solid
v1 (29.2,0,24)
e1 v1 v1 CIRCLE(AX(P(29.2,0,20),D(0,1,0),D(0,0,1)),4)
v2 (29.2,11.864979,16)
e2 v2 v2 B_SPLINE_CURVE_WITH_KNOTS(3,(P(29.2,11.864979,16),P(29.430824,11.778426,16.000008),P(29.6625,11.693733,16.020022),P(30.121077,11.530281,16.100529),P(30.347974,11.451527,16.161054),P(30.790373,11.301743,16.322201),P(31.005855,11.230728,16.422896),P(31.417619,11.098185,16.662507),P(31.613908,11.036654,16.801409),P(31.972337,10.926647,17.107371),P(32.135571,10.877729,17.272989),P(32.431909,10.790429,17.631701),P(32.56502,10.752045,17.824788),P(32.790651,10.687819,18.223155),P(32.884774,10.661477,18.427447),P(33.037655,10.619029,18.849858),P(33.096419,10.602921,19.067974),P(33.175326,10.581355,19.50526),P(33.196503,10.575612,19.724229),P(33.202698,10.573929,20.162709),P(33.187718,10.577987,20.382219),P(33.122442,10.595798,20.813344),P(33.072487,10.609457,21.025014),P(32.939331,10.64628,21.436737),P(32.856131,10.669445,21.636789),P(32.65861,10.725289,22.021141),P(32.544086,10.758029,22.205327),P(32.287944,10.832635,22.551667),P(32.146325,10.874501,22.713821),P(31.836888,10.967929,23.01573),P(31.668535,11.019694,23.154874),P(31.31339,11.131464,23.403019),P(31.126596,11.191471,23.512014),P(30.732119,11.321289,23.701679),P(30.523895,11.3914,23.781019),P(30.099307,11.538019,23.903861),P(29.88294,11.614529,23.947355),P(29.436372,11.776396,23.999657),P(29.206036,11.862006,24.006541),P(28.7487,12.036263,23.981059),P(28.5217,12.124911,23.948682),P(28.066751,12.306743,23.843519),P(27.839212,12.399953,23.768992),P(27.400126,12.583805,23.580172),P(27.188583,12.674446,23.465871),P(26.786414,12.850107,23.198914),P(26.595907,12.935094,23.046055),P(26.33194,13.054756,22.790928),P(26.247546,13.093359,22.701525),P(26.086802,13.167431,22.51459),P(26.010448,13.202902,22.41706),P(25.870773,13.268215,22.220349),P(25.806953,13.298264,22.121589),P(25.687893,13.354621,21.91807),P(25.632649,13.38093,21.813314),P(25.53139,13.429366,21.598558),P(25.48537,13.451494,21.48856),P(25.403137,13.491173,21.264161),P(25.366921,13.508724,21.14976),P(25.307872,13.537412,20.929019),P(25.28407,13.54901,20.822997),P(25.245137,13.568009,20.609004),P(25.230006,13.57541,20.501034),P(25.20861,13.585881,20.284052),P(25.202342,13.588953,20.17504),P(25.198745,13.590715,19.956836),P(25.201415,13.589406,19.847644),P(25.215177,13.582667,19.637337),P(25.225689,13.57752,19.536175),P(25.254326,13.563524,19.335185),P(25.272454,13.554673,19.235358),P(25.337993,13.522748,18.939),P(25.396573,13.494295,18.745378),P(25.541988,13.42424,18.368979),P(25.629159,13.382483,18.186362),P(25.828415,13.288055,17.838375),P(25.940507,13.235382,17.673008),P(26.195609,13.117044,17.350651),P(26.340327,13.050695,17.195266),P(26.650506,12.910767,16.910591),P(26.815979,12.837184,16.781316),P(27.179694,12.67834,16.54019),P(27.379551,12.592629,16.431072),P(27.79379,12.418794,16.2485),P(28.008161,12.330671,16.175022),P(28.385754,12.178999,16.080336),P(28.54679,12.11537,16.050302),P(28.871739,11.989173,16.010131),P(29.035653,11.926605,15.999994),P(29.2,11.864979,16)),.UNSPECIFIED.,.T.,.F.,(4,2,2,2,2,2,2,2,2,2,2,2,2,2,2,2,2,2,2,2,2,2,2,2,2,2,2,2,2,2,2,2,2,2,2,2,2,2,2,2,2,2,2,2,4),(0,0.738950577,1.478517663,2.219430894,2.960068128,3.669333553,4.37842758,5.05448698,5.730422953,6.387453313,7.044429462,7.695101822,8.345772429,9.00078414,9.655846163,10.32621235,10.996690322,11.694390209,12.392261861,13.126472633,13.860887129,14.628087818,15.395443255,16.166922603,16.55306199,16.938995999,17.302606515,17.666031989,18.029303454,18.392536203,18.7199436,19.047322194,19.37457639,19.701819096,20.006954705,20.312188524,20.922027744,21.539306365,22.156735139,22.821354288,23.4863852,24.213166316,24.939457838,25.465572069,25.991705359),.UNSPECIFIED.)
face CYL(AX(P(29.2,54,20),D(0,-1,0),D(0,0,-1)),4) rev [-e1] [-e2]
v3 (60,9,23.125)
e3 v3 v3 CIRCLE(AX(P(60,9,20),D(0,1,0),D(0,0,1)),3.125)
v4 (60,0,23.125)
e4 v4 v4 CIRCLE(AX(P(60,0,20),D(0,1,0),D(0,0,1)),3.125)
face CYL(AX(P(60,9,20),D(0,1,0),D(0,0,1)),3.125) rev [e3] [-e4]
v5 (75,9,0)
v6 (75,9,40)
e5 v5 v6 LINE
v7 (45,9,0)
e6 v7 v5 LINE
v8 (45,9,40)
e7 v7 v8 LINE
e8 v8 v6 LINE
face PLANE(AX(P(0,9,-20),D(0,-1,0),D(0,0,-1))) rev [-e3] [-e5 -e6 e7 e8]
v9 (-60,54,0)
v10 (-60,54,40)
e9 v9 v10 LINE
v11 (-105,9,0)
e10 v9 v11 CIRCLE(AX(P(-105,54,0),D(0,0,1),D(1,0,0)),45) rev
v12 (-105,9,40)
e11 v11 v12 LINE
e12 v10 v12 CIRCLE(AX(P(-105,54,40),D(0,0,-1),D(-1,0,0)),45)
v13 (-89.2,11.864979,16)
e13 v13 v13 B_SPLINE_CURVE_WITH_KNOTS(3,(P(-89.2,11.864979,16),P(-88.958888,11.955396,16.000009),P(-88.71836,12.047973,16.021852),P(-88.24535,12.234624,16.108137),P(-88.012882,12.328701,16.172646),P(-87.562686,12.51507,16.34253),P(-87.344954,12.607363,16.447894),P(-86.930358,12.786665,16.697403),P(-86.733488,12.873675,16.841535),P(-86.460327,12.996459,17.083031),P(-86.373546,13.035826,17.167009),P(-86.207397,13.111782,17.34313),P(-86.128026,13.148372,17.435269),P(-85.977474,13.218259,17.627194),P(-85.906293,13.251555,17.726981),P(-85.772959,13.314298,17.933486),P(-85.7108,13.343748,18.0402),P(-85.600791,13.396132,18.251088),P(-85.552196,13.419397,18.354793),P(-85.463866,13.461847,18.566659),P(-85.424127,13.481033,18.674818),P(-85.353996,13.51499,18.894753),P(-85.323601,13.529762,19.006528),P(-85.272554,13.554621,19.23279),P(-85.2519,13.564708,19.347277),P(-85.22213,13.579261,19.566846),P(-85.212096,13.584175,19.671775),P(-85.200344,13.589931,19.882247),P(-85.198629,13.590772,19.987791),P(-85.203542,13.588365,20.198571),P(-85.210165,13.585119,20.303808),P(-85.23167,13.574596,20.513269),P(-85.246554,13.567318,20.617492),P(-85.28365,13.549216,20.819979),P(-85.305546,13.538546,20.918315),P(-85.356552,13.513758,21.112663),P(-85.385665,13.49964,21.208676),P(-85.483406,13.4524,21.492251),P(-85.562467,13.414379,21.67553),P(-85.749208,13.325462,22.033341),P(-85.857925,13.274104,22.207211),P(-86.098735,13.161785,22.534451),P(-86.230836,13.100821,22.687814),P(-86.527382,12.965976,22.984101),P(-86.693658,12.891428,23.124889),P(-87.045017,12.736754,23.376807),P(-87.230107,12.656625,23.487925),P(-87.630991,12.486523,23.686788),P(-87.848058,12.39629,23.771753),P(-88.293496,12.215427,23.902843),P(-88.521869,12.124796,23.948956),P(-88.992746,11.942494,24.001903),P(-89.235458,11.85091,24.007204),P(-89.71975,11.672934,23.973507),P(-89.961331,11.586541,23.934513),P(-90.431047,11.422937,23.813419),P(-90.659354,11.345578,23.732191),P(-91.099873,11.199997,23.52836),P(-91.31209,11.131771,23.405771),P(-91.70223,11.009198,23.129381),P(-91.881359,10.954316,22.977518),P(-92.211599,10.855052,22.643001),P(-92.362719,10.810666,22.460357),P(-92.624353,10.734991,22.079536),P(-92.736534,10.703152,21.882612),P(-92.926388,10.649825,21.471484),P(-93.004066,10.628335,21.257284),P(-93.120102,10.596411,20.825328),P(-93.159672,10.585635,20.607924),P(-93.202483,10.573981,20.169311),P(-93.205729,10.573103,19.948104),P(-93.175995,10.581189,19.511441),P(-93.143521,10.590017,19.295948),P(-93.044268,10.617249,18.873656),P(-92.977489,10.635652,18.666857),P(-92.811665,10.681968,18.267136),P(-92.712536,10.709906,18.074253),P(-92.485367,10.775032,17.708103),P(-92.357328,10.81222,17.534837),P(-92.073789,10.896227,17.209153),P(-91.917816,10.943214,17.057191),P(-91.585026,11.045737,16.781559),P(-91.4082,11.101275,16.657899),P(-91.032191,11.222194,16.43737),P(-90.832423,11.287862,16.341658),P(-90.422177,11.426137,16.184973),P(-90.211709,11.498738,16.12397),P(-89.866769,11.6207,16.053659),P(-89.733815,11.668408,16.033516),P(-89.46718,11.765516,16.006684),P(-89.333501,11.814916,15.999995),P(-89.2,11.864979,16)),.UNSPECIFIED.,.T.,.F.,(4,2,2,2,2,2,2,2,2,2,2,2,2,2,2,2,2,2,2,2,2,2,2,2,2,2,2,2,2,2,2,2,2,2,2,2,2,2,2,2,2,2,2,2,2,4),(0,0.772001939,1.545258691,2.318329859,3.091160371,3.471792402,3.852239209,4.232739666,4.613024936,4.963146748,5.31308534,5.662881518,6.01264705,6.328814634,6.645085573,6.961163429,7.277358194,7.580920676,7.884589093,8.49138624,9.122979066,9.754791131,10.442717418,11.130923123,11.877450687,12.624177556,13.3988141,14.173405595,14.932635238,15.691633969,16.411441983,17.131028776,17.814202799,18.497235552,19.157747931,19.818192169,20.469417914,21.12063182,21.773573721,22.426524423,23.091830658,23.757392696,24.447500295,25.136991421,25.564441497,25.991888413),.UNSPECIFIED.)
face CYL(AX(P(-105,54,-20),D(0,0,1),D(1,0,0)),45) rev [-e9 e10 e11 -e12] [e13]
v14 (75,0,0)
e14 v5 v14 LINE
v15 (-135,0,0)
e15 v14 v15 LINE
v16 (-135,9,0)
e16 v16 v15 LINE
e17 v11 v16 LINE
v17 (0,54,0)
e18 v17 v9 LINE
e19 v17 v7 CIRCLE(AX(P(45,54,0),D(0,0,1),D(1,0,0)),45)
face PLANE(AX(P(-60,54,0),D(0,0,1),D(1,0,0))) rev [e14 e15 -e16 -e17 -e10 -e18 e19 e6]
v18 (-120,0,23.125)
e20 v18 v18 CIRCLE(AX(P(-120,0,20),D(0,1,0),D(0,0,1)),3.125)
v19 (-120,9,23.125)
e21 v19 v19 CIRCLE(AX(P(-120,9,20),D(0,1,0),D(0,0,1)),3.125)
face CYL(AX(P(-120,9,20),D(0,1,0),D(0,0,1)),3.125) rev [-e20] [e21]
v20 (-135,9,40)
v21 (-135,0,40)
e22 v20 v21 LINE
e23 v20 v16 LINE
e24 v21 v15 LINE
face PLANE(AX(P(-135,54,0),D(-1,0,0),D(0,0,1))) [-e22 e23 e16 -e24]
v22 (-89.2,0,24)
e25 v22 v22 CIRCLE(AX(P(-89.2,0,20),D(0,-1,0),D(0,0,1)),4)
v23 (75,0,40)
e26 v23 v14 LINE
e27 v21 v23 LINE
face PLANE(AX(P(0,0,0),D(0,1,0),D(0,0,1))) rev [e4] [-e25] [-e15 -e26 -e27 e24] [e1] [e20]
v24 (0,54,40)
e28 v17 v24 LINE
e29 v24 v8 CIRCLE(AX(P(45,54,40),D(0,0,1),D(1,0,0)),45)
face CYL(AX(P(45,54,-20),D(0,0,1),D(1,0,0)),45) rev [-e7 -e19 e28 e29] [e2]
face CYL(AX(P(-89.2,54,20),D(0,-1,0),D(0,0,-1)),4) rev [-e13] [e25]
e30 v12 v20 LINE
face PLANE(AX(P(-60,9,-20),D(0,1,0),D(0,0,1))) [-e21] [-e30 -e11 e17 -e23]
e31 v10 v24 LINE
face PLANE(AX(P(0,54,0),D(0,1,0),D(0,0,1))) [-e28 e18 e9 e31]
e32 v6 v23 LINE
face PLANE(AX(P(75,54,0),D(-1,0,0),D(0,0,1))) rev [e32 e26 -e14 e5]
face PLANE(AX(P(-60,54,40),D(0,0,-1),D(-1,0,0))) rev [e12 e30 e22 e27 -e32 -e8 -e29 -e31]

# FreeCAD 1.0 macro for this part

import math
import FreeCAD as App
import Part
import Sketcher

V = App.Vector


def add_polygon(sketch, points):
    """Adds a closed chain of lines whose ends are joined by coincident constraints."""
    first, n = sketch.GeometryCount, len(points)
    for a, b in zip(points, points[1:] + points[:1]):
        sketch.addGeometry(Part.LineSegment(App.Vector(*a, 0), App.Vector(*b, 0)), False)
    for i in range(n):
        sketch.addConstraint(Sketcher.Constraint("Coincident", first + i, 2, first + (i + 1) % n, 1))

doc = App.newDocument("Part")
params = doc.addObject("Spreadsheet::Sheet", "Params")
for row, (alias, value) in enumerate([
    ("sketch1_width", "60 mm"),
    ("sketch1_height", "40 mm"),
    ("pad1_length", "54 mm"),
    ("sketch2_diameter", "8 mm"),
    ("sketch2_width", "75 mm"),
    ("sketch2_height", "40 mm"),
    ("pad2_length", "54 mm"),
    ("sketch3_radius", "45 mm"),
    ("sketch3_width", "30 mm"),
    ("pocket1_length", "60 mm"),
    ("sketch4_diameter", "6.25 mm"),
    ("hole_diameter", "6.25 mm"),
], start=1):
    params.set(f"A{row}", alias)
    params.set(f"B{row}", "=" + value)
    params.setAlias(f"B{row}", alias)

body = doc.addObject("PartDesign::Body", "Body")

# Sketch on XZ plane
sketch1 = doc.addObject("Sketcher::SketchObject", "Sketch")
body.addObject(sketch1)
sketch1.AttachmentSupport = (doc.XZ_Plane, [""])
sketch1.MapMode = "FlatFace"
add_polygon(sketch1, [(-60, 0), (-60, 40), (0, 40), (0, 0)])  # lines 0-3
sketch1.addConstraint([
    Sketcher.Constraint("Vertical", 0),
    Sketcher.Constraint("Horizontal", 1),
    Sketcher.Constraint("Vertical", 2),
    Sketcher.Constraint("Horizontal", 3),
    Sketcher.Constraint("Coincident", 2, 2, -1, 1),
    Sketcher.Constraint("DistanceX", 1, 1, 1, 2, 60.0),
    Sketcher.Constraint("DistanceY", 0, 1, 0, 2, 40.0),
])
sketch1.setExpression("Constraints[9]", "Params.sketch1_width")
sketch1.setExpression("Constraints[10]", "Params.sketch1_height")
pad1 = doc.addObject("PartDesign::Pad", "Pad")
body.addObject(pad1)
pad1.Profile = sketch1
pad1.setExpression("Length", "Params.pad1_length")
pad1.Reversed = True

# Sketch on XZ plane
sketch2 = doc.addObject("Sketcher::SketchObject", "Sketch001")
body.addObject(sketch2)
sketch2.AttachmentSupport = (doc.XZ_Plane, [""])
sketch2.MapMode = "FlatFace"
add_polygon(sketch2, [(0, 0), (0, 40), (75, 40), (75, 0)])  # lines 0-3
sketch2.addGeometry(Part.Circle(V(29.2, 20, 0), V(0, 0, 1), 4), False)  # 4
sketch2.addConstraint([
    Sketcher.Constraint("Vertical", 0),
    Sketcher.Constraint("Horizontal", 1),
    Sketcher.Constraint("Vertical", 2),
    Sketcher.Constraint("Horizontal", 3),
    Sketcher.Constraint("Coincident", 3, 2, -1, 1),
    Sketcher.Constraint("Diameter", 4, 8.0),
    Sketcher.Constraint("DistanceX", 1, 1, 1, 2, 75.0),
    Sketcher.Constraint("DistanceY", 0, 1, 0, 2, 40.0),
    Sketcher.Constraint("DistanceY", -1, 1, 4, 3, 20.0),
    Sketcher.Constraint("DistanceX", -1, 1, 4, 3, 29.2),
])
sketch2.setExpression("Constraints[9]", "Params.sketch2_diameter")
sketch2.setExpression("Constraints[10]", "Params.sketch2_width")
sketch2.setExpression("Constraints[11]", "Params.sketch2_height")
pad2 = doc.addObject("PartDesign::Pad", "Pad001")
body.addObject(pad2)
pad2.Profile = sketch2
pad2.setExpression("Length", "Params.pad2_length")
pad2.Reversed = True

# Sketch on XY plane
sketch3 = doc.addObject("Sketcher::SketchObject", "Sketch002")
body.addObject(sketch3)
sketch3.AttachmentSupport = (doc.XY_Plane, [""])
sketch3.MapMode = "FlatFace"
sketch3.AttachmentOffset = App.Placement(V(0, 0, 40), App.Rotation())
sketch3.addGeometry([
    Part.LineSegment(V(45, 9, 0), V(75, 9, 0)),
    Part.LineSegment(V(75, 9, 0), V(75, 54, 0)),
    Part.LineSegment(V(75, 54, 0), V(0, 54, 0)),
    Part.ArcOfCircle(Part.Circle(V(45, 54, 0), V(0, 0, 1), 45), math.radians(-180), math.radians(-90)),
], False)
sketch3.addConstraint([
    Sketcher.Constraint("Coincident", 0, 2, 1, 1),
    Sketcher.Constraint("Coincident", 1, 2, 2, 1),
    Sketcher.Constraint("Coincident", 2, 2, 3, 1),
    Sketcher.Constraint("Tangent", 3, 2, 0, 1),
    Sketcher.Constraint("Horizontal", 0),
    Sketcher.Constraint("Vertical", 1),
    Sketcher.Constraint("Horizontal", 2),
    Sketcher.Constraint("PointOnObject", 2, 2, -2),
    Sketcher.Constraint("Horizontal", 3, 3, 1, 2),
    Sketcher.Constraint("Radius", 3, 45.0),
    Sketcher.Constraint("DistanceX", 0, 1, 0, 2, 30.0),
    Sketcher.Constraint("DistanceY", -1, 1, 3, 3, 54.0),
])
sketch3.setExpression("Constraints[9]", "Params.sketch3_radius")
sketch3.setExpression("Constraints[10]", "Params.sketch3_width")
pocket1 = doc.addObject("PartDesign::Pocket", "Pocket")
body.addObject(pocket1)
pocket1.Profile = sketch3
pocket1.setExpression("Length", "Params.pocket1_length")

# Sketch on XZ plane
sketch4 = doc.addObject("Sketcher::SketchObject", "Sketch003")
body.addObject(sketch4)
sketch4.AttachmentSupport = (doc.XZ_Plane, [""])
sketch4.MapMode = "FlatFace"
sketch4.AttachmentOffset = App.Placement(V(0, 0, -9), App.Rotation())
sketch4.addGeometry(Part.Circle(V(60, 20, 0), V(0, 0, 1), 3.125), False)
sketch4.addConstraint([
    Sketcher.Constraint("Diameter", 0, 6.25),
    Sketcher.Constraint("DistanceX", -1, 1, 0, 3, 60.0),
    Sketcher.Constraint("DistanceY", -1, 1, 0, 3, 20.0),
])
sketch4.setExpression("Constraints[0]", "Params.sketch4_diameter")
doc.recompute()
hole = doc.addObject("PartDesign::Hole", "Hole")
body.addObject(hole)
hole.Profile = sketch4
hole.ThreadType = "None"
hole.setExpression("Diameter", "Params.hole_diameter")
hole.DepthType = "ThroughAll"
hole.Reversed = True
doc.recompute()

datumplane = doc.addObject("PartDesign::Plane", "DatumPlane")
body.addObject(datumplane)
datumplane.AttachmentSupport = (doc.YZ_Plane, [""])
datumplane.MapMode = "FlatFace"
datumplane.AttachmentOffset = App.Placement(V(0, 0, -30), App.Rotation())
mirrored = doc.addObject("PartDesign::Mirrored", "Mirrored")
body.addObject(mirrored)
mirrored.Originals = [pad2, pocket1, hole]
mirrored.MirrorPlane = (datumplane, [""])
body.Tip = mirrored

doc.recompute()
